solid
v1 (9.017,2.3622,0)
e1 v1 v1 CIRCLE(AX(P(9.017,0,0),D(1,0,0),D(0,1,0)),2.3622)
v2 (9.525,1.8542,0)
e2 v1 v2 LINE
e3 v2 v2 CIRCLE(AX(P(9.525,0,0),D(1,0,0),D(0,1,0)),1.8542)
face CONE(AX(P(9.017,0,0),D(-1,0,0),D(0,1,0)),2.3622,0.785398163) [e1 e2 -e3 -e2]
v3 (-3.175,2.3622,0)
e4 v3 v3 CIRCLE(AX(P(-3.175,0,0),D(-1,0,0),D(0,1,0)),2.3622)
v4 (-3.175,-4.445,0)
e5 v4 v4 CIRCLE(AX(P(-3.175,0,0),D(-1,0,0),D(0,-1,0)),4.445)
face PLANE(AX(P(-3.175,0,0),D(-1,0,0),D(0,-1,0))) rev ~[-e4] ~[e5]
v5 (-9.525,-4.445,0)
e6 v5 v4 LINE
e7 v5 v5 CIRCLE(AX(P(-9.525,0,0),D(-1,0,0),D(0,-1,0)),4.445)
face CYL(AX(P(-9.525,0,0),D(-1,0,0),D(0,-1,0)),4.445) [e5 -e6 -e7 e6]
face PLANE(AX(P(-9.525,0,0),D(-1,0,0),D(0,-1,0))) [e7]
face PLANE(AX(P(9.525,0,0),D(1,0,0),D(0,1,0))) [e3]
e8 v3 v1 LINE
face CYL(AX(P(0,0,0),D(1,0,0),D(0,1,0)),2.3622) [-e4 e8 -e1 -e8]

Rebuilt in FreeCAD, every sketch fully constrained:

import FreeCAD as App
import Part
import Sketcher
Q = App.Units.Quantity


def edges_at(feature, points):
    """Names of the edges that pass closest to the given points."""
    edges = feature.Shape.Edges
    near = lambda p: min(range(len(edges)), key=lambda i: edges[i].distToShape(Part.Vertex(*p))[0])
    return sorted({f"Edge{near(p) + 1}" for p in points})

doc = App.newDocument("Part")
params = doc.addObject("Spreadsheet::Sheet", "Params")
for row, (alias, value) in enumerate([
    ("sketch1_diameter", "0.186 in"),
    ("pad1_length", "0.75 in"),
    ("sketch2_diameter", "0.35 in"),
    ("sketch2_diameter2", "0.186 in"),
    ("pad2_length", "0.25 in"),
    ("chamfer_size", "0.02 in"),
], start=1):
    params.set(f"A{row}", alias)
    params.set(f"B{row}", "=" + value)
    params.setAlias(f"B{row}", alias)

body = doc.addObject("PartDesign::Body", "Body")

# Sketch on YZ plane
sketch1 = body.newObject("Sketcher::SketchObject", "Sketch")
sketch1.AttachmentSupport = (doc.getObject("YZ_Plane"), [""])
sketch1.MapMode = "FlatFace"
sketch1.addGeometry(Part.Circle(App.Vector(0, 0, 0), App.Vector(0, 0, 1), 2.4), False)
sketch1.addConstraint([
    Sketcher.Constraint("Coincident", 0, 3, -1, 1),
    Sketcher.Constraint("Diameter", 0, Q("0.186 in")),
])
sketch1.setExpression("Constraints[1]", "Params.sketch1_diameter")
pad1 = body.newObject("PartDesign::Pad", "Pad")
pad1.Profile = sketch1
pad1.setExpression("Length", "Params.pad1_length")
pad1.Midplane = True

# Sketch on YZ plane
sketch2 = body.newObject("Sketcher::SketchObject", "Sketch001")
sketch2.AttachmentSupport = (doc.getObject("YZ_Plane"), [""])
sketch2.MapMode = "FlatFace"
sketch2.AttachmentOffset = App.Placement(App.Vector(0, 0, -0.375 * 25.4), App.Rotation())
sketch2.addGeometry([
    Part.Circle(App.Vector(0, 0, 0), App.Vector(0, 0, 1), 4.4),
    Part.Circle(App.Vector(0, 0, 0), App.Vector(0, 0, 1), 2.4),
], False)
sketch2.addConstraint([
    Sketcher.Constraint("Coincident", 0, 3, -1, 1),
    Sketcher.Constraint("Coincident", 1, 3, -1, 1),
    Sketcher.Constraint("Diameter", 0, Q("0.35 in")),
    Sketcher.Constraint("Diameter", 1, Q("0.186 in")),
])
sketch2.setExpression("Constraints[2]", "Params.sketch2_diameter")
sketch2.setExpression("Constraints[3]", "Params.sketch2_diameter2")
pad2 = body.newObject("PartDesign::Pad", "Pad001")
pad2.Profile = sketch2
pad2.setExpression("Length", "Params.pad2_length")
doc.recompute()

chamfer = body.newObject("PartDesign::Chamfer", "Chamfer")
chamfer.Base = (pad2, edges_at(pad2, [(9.525, -2.362, 0)]))
chamfer.setExpression("Size", "Params.chamfer_size")

doc.recompute()
